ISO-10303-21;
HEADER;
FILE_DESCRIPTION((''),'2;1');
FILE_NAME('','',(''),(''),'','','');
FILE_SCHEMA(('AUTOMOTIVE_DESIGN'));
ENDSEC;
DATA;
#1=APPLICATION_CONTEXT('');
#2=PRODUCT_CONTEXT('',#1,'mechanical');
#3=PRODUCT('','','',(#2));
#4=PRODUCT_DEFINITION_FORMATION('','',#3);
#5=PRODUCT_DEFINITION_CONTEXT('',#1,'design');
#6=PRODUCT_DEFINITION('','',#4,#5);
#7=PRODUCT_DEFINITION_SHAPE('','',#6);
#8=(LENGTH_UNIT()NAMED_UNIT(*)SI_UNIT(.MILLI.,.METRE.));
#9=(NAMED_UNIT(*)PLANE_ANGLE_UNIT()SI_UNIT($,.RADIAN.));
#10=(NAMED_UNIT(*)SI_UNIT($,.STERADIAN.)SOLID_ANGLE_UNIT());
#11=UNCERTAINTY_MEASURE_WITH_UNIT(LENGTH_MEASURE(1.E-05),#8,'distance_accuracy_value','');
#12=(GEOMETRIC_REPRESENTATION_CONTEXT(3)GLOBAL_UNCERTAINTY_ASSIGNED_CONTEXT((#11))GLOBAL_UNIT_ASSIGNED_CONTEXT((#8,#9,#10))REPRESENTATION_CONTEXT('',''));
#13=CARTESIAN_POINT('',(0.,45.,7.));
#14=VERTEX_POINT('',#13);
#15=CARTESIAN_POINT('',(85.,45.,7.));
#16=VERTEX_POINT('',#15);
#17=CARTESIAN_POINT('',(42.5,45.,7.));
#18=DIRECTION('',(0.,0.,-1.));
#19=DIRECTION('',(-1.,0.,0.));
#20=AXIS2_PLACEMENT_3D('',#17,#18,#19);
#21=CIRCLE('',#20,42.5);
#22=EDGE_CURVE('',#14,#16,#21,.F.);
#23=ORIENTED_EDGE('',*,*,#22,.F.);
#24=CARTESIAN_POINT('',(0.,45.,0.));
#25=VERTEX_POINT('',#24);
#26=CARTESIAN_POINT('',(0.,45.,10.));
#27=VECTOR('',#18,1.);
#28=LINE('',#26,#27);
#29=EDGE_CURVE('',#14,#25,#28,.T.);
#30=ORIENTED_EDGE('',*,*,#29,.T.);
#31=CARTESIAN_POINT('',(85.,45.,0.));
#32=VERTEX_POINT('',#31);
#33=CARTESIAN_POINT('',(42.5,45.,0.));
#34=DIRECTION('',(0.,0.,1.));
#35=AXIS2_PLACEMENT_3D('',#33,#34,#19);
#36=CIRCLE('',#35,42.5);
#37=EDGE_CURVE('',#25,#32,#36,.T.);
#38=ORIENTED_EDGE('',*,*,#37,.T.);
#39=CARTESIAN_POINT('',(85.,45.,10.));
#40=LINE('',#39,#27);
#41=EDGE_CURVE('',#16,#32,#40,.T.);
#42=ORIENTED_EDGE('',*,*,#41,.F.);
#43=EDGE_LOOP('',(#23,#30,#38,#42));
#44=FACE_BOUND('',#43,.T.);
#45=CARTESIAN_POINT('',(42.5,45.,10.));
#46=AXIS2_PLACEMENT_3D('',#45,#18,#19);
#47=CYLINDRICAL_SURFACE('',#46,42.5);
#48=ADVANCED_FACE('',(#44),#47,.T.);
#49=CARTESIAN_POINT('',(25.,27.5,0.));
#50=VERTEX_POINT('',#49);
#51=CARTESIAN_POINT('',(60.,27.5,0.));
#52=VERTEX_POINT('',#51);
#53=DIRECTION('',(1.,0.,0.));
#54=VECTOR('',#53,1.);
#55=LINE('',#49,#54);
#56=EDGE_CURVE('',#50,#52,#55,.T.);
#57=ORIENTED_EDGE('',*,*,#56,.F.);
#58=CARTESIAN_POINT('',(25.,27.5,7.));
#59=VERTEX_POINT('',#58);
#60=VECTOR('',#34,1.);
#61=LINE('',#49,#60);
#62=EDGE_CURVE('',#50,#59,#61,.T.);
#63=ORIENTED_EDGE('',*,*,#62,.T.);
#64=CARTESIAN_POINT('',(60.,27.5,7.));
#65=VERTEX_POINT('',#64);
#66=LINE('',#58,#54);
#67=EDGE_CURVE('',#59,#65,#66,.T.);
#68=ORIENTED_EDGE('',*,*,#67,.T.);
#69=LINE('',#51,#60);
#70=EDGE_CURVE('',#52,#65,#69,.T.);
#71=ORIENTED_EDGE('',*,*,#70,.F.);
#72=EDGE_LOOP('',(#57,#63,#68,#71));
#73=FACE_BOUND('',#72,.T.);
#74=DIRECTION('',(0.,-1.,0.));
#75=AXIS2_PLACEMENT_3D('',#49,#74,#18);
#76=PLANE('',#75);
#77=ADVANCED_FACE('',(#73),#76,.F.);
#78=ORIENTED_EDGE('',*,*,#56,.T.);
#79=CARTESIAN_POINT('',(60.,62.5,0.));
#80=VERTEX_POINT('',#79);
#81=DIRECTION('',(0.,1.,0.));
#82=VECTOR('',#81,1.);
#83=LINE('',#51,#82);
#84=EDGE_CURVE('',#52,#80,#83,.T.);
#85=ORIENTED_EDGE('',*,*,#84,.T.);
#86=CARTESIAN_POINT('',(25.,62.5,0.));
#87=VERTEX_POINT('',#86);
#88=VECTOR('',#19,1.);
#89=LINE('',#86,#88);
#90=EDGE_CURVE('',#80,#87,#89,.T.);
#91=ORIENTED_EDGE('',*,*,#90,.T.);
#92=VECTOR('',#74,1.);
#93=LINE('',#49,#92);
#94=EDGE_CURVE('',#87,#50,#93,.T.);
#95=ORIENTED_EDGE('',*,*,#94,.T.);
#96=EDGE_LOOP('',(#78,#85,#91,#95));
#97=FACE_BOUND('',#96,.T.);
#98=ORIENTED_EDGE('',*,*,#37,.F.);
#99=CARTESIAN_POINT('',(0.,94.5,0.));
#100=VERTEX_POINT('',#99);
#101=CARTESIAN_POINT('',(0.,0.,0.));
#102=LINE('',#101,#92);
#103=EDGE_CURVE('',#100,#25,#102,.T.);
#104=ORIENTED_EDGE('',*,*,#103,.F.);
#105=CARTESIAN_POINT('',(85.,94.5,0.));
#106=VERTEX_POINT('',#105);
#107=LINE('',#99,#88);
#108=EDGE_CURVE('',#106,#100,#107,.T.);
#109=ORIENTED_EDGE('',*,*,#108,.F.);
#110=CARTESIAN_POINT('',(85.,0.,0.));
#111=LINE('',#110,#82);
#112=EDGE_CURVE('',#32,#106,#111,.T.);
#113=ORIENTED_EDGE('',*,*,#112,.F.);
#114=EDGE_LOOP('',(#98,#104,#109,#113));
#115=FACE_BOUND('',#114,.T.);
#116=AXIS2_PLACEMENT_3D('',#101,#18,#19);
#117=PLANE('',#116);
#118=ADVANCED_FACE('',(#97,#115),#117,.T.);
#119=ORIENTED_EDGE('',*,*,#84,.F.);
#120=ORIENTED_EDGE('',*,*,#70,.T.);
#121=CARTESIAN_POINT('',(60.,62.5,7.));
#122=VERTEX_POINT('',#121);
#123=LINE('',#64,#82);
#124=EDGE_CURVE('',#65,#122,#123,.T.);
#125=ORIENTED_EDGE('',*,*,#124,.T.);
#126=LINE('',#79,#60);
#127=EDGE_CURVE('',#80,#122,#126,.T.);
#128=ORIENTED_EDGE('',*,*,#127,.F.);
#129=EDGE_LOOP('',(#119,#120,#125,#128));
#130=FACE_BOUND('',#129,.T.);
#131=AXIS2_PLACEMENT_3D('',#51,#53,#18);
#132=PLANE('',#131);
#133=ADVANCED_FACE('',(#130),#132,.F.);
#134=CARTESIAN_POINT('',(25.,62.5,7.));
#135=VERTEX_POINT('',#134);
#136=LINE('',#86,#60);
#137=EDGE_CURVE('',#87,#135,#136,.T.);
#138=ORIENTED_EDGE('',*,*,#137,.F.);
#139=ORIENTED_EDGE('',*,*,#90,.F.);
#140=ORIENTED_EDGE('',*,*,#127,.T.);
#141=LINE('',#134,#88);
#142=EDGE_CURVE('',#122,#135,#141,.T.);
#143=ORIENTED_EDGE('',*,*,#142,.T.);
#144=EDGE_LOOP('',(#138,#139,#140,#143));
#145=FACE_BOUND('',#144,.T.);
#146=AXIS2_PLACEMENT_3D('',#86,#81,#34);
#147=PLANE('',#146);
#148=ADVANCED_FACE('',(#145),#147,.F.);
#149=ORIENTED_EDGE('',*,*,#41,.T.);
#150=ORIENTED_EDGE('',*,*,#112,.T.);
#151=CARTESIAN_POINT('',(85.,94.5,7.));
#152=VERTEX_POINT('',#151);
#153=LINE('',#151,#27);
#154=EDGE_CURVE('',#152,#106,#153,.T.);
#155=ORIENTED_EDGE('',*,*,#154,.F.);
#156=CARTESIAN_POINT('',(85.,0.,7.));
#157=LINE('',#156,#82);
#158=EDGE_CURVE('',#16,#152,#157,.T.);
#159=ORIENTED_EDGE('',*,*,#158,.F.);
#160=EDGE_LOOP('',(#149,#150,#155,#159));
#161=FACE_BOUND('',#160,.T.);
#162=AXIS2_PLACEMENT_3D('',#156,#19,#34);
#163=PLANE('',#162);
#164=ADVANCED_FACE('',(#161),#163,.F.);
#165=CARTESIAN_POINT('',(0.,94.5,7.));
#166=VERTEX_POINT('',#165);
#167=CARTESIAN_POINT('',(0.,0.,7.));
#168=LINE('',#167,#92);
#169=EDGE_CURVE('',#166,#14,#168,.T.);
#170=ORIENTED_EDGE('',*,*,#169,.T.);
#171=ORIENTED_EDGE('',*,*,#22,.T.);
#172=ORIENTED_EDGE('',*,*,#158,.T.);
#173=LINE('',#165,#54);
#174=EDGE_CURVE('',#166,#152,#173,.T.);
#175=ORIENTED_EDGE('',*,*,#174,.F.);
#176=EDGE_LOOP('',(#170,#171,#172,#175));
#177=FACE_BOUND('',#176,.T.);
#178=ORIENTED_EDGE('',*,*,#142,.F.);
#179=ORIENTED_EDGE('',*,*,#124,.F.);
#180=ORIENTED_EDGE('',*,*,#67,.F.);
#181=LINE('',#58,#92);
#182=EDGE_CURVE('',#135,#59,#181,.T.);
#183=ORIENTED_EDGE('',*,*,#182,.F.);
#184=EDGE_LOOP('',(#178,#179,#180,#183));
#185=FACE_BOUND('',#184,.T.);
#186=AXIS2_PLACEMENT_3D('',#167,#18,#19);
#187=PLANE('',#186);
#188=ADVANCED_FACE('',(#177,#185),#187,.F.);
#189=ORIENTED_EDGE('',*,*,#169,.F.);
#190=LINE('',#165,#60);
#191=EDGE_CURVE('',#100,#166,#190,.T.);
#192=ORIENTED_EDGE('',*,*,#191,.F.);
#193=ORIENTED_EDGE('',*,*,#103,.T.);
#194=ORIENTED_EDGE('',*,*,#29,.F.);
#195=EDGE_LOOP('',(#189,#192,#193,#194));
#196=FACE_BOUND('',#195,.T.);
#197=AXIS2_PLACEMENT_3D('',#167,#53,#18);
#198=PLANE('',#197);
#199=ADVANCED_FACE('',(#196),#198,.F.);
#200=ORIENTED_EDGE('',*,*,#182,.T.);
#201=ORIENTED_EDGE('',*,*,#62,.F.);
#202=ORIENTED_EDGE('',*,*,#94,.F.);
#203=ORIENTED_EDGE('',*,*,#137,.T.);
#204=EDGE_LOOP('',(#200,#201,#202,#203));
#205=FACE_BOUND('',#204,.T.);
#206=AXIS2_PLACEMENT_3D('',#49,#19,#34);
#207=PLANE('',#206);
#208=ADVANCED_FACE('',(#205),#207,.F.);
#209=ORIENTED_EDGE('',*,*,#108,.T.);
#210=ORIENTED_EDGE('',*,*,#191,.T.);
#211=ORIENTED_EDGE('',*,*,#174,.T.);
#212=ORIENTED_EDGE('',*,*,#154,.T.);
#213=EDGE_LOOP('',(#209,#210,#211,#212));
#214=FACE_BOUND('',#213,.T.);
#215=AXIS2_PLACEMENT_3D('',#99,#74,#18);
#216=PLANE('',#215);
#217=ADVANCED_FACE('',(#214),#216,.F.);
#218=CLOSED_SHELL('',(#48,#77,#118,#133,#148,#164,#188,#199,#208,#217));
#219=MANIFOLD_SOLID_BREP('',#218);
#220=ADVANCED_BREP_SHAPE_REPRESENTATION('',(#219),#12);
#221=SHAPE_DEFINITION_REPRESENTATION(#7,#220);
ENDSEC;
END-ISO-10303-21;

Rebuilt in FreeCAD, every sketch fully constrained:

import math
import FreeCAD as App
import Part
import Sketcher
Q = App.Units.Quantity


def add_polygon(sketch, points):
    """Adds a closed chain of lines whose ends are joined by coincident constraints."""
    first, n = sketch.GeometryCount, len(points)
    for a, b in zip(points, points[1:] + points[:1]):
        sketch.addGeometry(Part.LineSegment(App.Vector(*a, 0), App.Vector(*b, 0)), False)
    for i in range(n):
        sketch.addConstraint(Sketcher.Constraint("Coincident", first + i, 2, first + (i + 1) % n, 1))

doc = App.newDocument("Part")
body = doc.addObject("PartDesign::Body", "Body")

# Sketch on XY plane
sketch1 = body.newObject("Sketcher::SketchObject", "Sketch")
sketch1.AttachmentSupport = (doc.getObject("XY_Plane"), [""])
sketch1.MapMode = "FlatFace"
add_polygon(sketch1, [(0, 95), (0, 0), (85, 0), (85, 95)])  # lines 0-3
sketch1.addConstraint(Sketcher.Constraint("Vertical", 0))
sketch1.addConstraint(Sketcher.Constraint("Horizontal", 1))
sketch1.addConstraint(Sketcher.Constraint("Vertical", 2))
sketch1.addConstraint(Sketcher.Constraint("Horizontal", 3))
sketch1.addConstraint(Sketcher.Constraint("Coincident", 0, 2, -1, 1))
sketch1.addConstraint(Sketcher.Constraint("DistanceX", 1, 1, 1, 2, Q("85 mm")))
sketch1.addConstraint(Sketcher.Constraint("DistanceY", 0, 2, 0, 1, Q("95 mm")))
pad1 = body.newObject("PartDesign::Pad", "Pad")
pad1.Profile = sketch1
pad1.Length = 7

# Sketch on XY plane
sketch2 = body.newObject("Sketcher::SketchObject", "Sketch001")
sketch2.AttachmentSupport = (doc.getObject("XY_Plane"), [""])
sketch2.MapMode = "FlatFace"
sketch2.AttachmentOffset = App.Placement(App.Vector(0, 0, 7), App.Rotation())
add_polygon(sketch2, [(25, 62), (25, 28), (60, 28), (60, 62)])  # lines 0-3
sketch2.addConstraint(Sketcher.Constraint("Vertical", 0))
sketch2.addConstraint(Sketcher.Constraint("Horizontal", 1))
sketch2.addConstraint(Sketcher.Constraint("Vertical", 2))
sketch2.addConstraint(Sketcher.Constraint("Horizontal", 3))
sketch2.addConstraint(Sketcher.Constraint("Equal", 3, 0))
sketch2.addConstraint(Sketcher.Constraint("DistanceX", 1, 1, 1, 2, Q("35 mm")))
sketch2.addConstraint(Sketcher.Constraint("DistanceX", -1, 1, 0, 2, Q("25 mm")))
sketch2.addConstraint(Sketcher.Constraint("DistanceY", -1, 1, 0, 2, Q("27.5 mm")))
pocket1 = body.newObject("PartDesign::Pocket", "Pocket")
pocket1.Profile = sketch2
pocket1.Length = 7

# Sketch on XY plane
sketch3 = body.newObject("Sketcher::SketchObject", "Sketch002")
sketch3.AttachmentSupport = (doc.getObject("XY_Plane"), [""])
sketch3.MapMode = "FlatFace"
sketch3.addGeometry(Part.LineSegment(App.Vector(85, 45, 0), App.Vector(85, 0, 0)), False)
sketch3.addGeometry(Part.LineSegment(App.Vector(85, 0, 0), App.Vector(0, 0, 0)), False)
sketch3.addGeometry(Part.LineSegment(App.Vector(0, 0, 0), App.Vector(0, 45, 0)), False)
sketch3.addGeometry(Part.ArcOfCircle(Part.Circle(App.Vector(42, 45, 0), App.Vector(0, 0, 1), 42), math.radians(180), math.radians(360)), False)
sketch3.addConstraint(Sketcher.Constraint("Coincident", 0, 2, 1, 1))
sketch3.addConstraint(Sketcher.Constraint("Coincident", 1, 2, 2, 1))
sketch3.addConstraint(Sketcher.Constraint("Tangent", 2, 2, 3, 1))
sketch3.addConstraint(Sketcher.Constraint("Tangent", 3, 2, 0, 1))
sketch3.addConstraint(Sketcher.Constraint("Vertical", 0))
sketch3.addConstraint(Sketcher.Constraint("Horizontal", 1))
sketch3.addConstraint(Sketcher.Constraint("Vertical", 2))
sketch3.addConstraint(Sketcher.Constraint("Coincident", 1, 2, -1, 1))
sketch3.addConstraint(Sketcher.Constraint("Radius", 3, Q("42.5 mm")))
sketch3.addConstraint(Sketcher.Constraint("DistanceY", 0, 2, 0, 1, Q("45 mm")))
pocket2 = body.newObject("PartDesign::Pocket", "Pocket001")
pocket2.Profile = sketch3
pocket2.Length = 10
pocket2.Reversed = True

# Sketch on XZ plane
sketch4 = body.newObject("Sketcher::SketchObject", "Sketch003")
sketch4.AttachmentSupport = (doc.getObject("XZ_Plane"), [""])
sketch4.MapMode = "FlatFace"
sketch4.AttachmentOffset = App.Placement(App.Vector(0, 0, -95), App.Rotation())
add_polygon(sketch4, [(0, 0), (0, 7), (85, 7), (85, 0)])  # lines 0-3
sketch4.addConstraint(Sketcher.Constraint("Vertical", 0))
sketch4.addConstraint(Sketcher.Constraint("Horizontal", 1))
sketch4.addConstraint(Sketcher.Constraint("Vertical", 2))
sketch4.addConstraint(Sketcher.Constraint("Horizontal", 3))
sketch4.addConstraint(Sketcher.Constraint("Coincident", 3, 2, -1, 1))
sketch4.addConstraint(Sketcher.Constraint("DistanceX", 1, 1, 1, 2, Q("85 mm")))
sketch4.addConstraint(Sketcher.Constraint("DistanceY", 0, 1, 0, 2, Q("7 mm")))
pocket3 = body.newObject("PartDesign::Pocket", "Pocket002")
pocket3.Profile = sketch4
pocket3.Length = 0.5
pocket3.Reversed = True

doc.recompute()
